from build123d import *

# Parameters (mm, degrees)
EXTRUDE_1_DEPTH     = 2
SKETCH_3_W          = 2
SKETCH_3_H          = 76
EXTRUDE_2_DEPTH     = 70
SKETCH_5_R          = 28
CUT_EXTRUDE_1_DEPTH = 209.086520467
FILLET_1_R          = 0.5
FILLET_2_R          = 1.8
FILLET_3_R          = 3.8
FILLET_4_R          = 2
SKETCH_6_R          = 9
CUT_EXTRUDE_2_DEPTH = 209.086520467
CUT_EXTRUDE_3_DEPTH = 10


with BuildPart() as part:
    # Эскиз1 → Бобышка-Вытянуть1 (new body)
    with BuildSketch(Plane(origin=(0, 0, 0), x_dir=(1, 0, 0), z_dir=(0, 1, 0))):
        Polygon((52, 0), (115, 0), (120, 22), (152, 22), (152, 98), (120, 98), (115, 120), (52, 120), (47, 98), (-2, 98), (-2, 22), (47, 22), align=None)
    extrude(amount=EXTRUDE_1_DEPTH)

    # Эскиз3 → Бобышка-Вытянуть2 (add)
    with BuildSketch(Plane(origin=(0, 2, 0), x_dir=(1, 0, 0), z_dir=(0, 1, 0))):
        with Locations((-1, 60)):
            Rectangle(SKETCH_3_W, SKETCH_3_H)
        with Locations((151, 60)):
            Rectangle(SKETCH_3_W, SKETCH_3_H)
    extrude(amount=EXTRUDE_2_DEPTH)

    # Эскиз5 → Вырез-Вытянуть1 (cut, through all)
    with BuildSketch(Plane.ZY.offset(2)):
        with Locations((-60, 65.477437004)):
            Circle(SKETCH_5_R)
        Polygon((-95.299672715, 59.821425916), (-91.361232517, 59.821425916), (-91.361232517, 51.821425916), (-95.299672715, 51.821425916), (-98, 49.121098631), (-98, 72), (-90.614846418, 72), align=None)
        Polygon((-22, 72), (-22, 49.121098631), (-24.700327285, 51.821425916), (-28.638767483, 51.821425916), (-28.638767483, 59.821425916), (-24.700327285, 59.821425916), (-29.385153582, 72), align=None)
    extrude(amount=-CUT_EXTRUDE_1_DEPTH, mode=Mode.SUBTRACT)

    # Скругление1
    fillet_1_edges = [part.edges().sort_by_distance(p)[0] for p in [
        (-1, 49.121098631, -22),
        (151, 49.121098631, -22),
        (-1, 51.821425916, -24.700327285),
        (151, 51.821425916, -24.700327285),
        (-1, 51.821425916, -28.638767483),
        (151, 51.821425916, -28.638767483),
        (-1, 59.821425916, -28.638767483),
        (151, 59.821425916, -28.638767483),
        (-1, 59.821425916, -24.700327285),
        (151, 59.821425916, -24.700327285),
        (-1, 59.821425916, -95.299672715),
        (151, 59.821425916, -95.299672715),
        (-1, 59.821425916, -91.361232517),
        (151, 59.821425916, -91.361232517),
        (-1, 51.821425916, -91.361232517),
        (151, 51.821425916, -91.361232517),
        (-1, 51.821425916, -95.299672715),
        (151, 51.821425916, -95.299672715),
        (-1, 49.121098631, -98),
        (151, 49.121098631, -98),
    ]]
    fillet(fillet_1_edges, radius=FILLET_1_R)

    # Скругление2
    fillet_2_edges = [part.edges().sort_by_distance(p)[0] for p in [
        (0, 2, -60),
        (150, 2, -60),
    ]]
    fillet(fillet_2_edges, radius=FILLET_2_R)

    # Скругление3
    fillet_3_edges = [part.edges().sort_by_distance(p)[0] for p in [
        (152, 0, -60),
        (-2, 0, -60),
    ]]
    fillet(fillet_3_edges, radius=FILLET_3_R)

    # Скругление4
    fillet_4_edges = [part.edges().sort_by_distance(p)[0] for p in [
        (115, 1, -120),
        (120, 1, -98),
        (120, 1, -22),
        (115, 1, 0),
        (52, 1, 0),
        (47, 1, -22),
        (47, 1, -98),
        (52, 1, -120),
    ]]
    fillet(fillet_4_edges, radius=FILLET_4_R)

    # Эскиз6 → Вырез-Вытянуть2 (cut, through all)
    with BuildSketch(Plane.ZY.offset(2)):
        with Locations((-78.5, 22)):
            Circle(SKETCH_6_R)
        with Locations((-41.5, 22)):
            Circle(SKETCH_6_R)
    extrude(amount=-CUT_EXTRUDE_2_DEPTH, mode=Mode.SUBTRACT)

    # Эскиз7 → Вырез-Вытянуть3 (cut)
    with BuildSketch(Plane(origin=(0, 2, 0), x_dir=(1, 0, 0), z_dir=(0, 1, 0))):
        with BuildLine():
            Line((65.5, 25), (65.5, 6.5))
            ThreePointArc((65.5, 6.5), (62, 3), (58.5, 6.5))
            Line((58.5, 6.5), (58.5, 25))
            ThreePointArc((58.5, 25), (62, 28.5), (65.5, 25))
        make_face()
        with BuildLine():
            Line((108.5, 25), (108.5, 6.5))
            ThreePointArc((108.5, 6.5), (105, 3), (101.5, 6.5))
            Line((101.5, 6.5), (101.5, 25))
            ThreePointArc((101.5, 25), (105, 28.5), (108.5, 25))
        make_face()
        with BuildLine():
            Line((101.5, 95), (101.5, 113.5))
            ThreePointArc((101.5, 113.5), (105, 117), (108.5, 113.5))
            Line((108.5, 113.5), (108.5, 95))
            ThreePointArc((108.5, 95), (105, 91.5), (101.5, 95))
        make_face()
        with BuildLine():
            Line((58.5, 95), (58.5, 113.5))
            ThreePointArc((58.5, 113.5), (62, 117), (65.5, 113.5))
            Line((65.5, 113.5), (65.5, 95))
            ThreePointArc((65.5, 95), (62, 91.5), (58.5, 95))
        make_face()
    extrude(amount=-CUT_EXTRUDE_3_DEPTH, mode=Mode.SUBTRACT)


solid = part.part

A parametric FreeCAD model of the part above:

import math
import FreeCAD as App
import Part
import Sketcher
from FreeCAD import Vector
Q = App.Units.Quantity


def edges_at(feature, points):
    """Names of the edges that pass closest to the given points."""
    edges = feature.Shape.Edges
    near = lambda p: min(range(len(edges)), key=lambda i: edges[i].distToShape(Part.Vertex(*p))[0])
    return sorted({f"Edge{near(p) + 1}" for p in points})

doc = App.newDocument("Part")
body = doc.addObject("PartDesign::Body", "Body")

# Sketch on XZ plane
sketch1 = body.newObject("Sketcher::SketchObject", "Sketch")
sketch1.AttachmentSupport = (doc.getObject("XZ_Plane"), [""])
sketch1.MapMode = "FlatFace"
sketch1.addGeometry([
    Part.LineSegment(Vector(52, 0, 0), Vector(115, 0, 0)),  # 0
    Part.LineSegment(Vector(115, 0, 0), Vector(120, -22, 0)),  # 1
    Part.LineSegment(Vector(120, -22, 0), Vector(152, -22, 0)),  # 2
    Part.LineSegment(Vector(152, -22, 0), Vector(152, -98, 0)),  # 3
    Part.LineSegment(Vector(152, -98, 0), Vector(120, -98, 0)),  # 4
    Part.LineSegment(Vector(120, -98, 0), Vector(115, -120, 0)),  # 5
    Part.LineSegment(Vector(115, -120, 0), Vector(52, -120, 0)),  # 6
    Part.LineSegment(Vector(52, -120, 0), Vector(47, -98, 0)),  # 7
    Part.LineSegment(Vector(47, -98, 0), Vector(-2, -98, 0)),  # 8
    Part.LineSegment(Vector(-2, -98, 0), Vector(-2, -22, 0)),  # 9
    Part.LineSegment(Vector(-2, -22, 0), Vector(47, -22, 0)),  # 10
    Part.LineSegment(Vector(47, -22, 0), Vector(52, 0, 0)),  # 11
], False)
sketch1.addConstraint([
    Sketcher.Constraint("Coincident", 0, 2, 1, 1),
    Sketcher.Constraint("Coincident", 1, 2, 2, 1),
    Sketcher.Constraint("Coincident", 2, 2, 3, 1),
    Sketcher.Constraint("Coincident", 3, 2, 4, 1),
    Sketcher.Constraint("Coincident", 4, 2, 5, 1),
    Sketcher.Constraint("Coincident", 5, 2, 6, 1),
    Sketcher.Constraint("Coincident", 6, 2, 7, 1),
    Sketcher.Constraint("Coincident", 7, 2, 8, 1),
    Sketcher.Constraint("Coincident", 8, 2, 9, 1),
    Sketcher.Constraint("Coincident", 9, 2, 10, 1),
    Sketcher.Constraint("Coincident", 10, 2, 11, 1),
    Sketcher.Constraint("Coincident", 11, 2, 0, 1),
    Sketcher.Constraint("Horizontal", 0),
    Sketcher.Constraint("Horizontal", 2),
    Sketcher.Constraint("Vertical", 3),
    Sketcher.Constraint("Horizontal", 4),
    Sketcher.Constraint("Horizontal", 6),
    Sketcher.Constraint("Horizontal", 8),
    Sketcher.Constraint("Vertical", 9),
    Sketcher.Constraint("Horizontal", 10),
    Sketcher.Constraint("PointOnObject", 0, 2, -1),
    Sketcher.Constraint("Parallel", 1, 7),
    Sketcher.Constraint("Parallel", 5, 11),
    Sketcher.Constraint("Horizontal", 4, 2, 7, 2),
    Sketcher.Constraint("Horizontal", 2, 2, 9, 2),
    Sketcher.Constraint("Vertical", 1, 2, 4, 2),
    Sketcher.Constraint("Vertical", 0, 2, 5, 2),
    Sketcher.Constraint("Vertical", 7, 2, 10, 2),
    Sketcher.Constraint("Vertical", 6, 2, 11, 2),
    Sketcher.Constraint("DistanceX", 0, 1, 0, 2, Q("63 mm")),
    Sketcher.Constraint("DistanceX", 2, 1, 2, 2, Q("32 mm")),
    Sketcher.Constraint("DistanceX", 8, 2, 8, 1, Q("49 mm")),
    Sketcher.Constraint("DistanceY", 3, 2, 3, 1, Q("76 mm")),
    Sketcher.Constraint("DistanceX", -1, 1, 0, 2, Q("115 mm")),
    Sketcher.Constraint("DistanceX", -1, 1, 1, 2, Q("120 mm")),
    Sketcher.Constraint("DistanceY", 1, 2, -1, 1, Q("22 mm")),
])
pad1 = body.newObject("PartDesign::Pad", "Pad")
pad1.Profile = sketch1
pad1.Length = 2
pad1.Reversed = True

# Sketch on XZ plane
sketch2 = body.newObject("Sketcher::SketchObject", "Sketch001")
sketch2.AttachmentSupport = (doc.getObject("XZ_Plane"), [""])
sketch2.MapMode = "FlatFace"
sketch2.AttachmentOffset = App.Placement(Vector(0, 0, -2), App.Rotation())
sketch2.addGeometry([
    Part.LineSegment(Vector(-2, -98, 0), Vector(-2, -22, 0)),  # 0
    Part.LineSegment(Vector(-2, -22, 0), Vector(0, -22, 0)),  # 1
    Part.LineSegment(Vector(0, -22, 0), Vector(0, -98, 0)),  # 2
    Part.LineSegment(Vector(0, -98, 0), Vector(-2, -98, 0)),  # 3
    Part.LineSegment(Vector(150, -98, 0), Vector(150, -22, 0)),  # 4
    Part.LineSegment(Vector(150, -22, 0), Vector(152, -22, 0)),  # 5
    Part.LineSegment(Vector(152, -22, 0), Vector(152, -98, 0)),  # 6
    Part.LineSegment(Vector(152, -98, 0), Vector(150, -98, 0)),  # 7
], False)
sketch2.addConstraint([
    Sketcher.Constraint("Coincident", 0, 2, 1, 1),
    Sketcher.Constraint("Coincident", 1, 2, 2, 1),
    Sketcher.Constraint("Coincident", 2, 2, 3, 1),
    Sketcher.Constraint("Coincident", 3, 2, 0, 1),
    Sketcher.Constraint("Coincident", 4, 2, 5, 1),
    Sketcher.Constraint("Coincident", 5, 2, 6, 1),
    Sketcher.Constraint("Coincident", 6, 2, 7, 1),
    Sketcher.Constraint("Coincident", 7, 2, 4, 1),
    Sketcher.Constraint("Vertical", 0),
    Sketcher.Constraint("Horizontal", 1),
    Sketcher.Constraint("Vertical", 2),
    Sketcher.Constraint("Horizontal", 3),
    Sketcher.Constraint("Vertical", 4),
    Sketcher.Constraint("Horizontal", 5),
    Sketcher.Constraint("Vertical", 6),
    Sketcher.Constraint("Horizontal", 7),
    Sketcher.Constraint("PointOnObject", 1, 2, -2),
    Sketcher.Constraint("Horizontal", 1, 2, 4, 2),
    Sketcher.Constraint("Horizontal", 3, 2, 6, 2),
    Sketcher.Constraint("Equal", 3, 5),
    Sketcher.Constraint("DistanceX", 1, 1, 1, 2, Q("2 mm")),
    Sketcher.Constraint("DistanceY", 0, 1, 0, 2, Q("76 mm")),
    Sketcher.Constraint("DistanceY", 0, 2, -1, 1, Q("22 mm")),
    Sketcher.Constraint("DistanceX", -1, 1, 4, 2, Q("150 mm")),
])
pad2 = body.newObject("PartDesign::Pad", "Pad001")
pad2.Profile = sketch2
pad2.Length = 70
pad2.Reversed = True

# Sketch on YZ plane
sketch3 = body.newObject("Sketcher::SketchObject", "Sketch002")
sketch3.AttachmentSupport = (doc.getObject("YZ_Plane"), [""])
sketch3.MapMode = "FlatFace"
sketch3.AttachmentOffset = App.Placement(Vector(0, 0, -2), App.Rotation())
sketch3.addGeometry([
    Part.Circle(Vector(65.477437, -60, 0), Vector(0, 0, 1), 28),  # 0
    Part.LineSegment(Vector(59.821426, -91.361233, 0), Vector(59.821426, -95.299673, 0)),  # 1
    Part.LineSegment(Vector(59.821426, -95.299673, 0), Vector(72, -90.614846, 0)),  # 2
    Part.LineSegment(Vector(72, -90.614846, 0), Vector(72, -98, 0)),  # 3
    Part.LineSegment(Vector(72, -98, 0), Vector(49.121099, -98, 0)),  # 4
    Part.LineSegment(Vector(49.121099, -98, 0), Vector(51.821426, -95.299673, 0)),  # 5
    Part.LineSegment(Vector(51.821426, -95.299673, 0), Vector(51.821426, -91.361233, 0)),  # 6
    Part.LineSegment(Vector(51.821426, -91.361233, 0), Vector(59.821426, -91.361233, 0)),  # 7
    Part.LineSegment(Vector(49.121099, -22, 0), Vector(72, -22, 0)),  # 8
    Part.LineSegment(Vector(72, -22, 0), Vector(72, -29.385154, 0)),  # 9
    Part.LineSegment(Vector(72, -29.385154, 0), Vector(59.821426, -24.700327, 0)),  # 10
    Part.LineSegment(Vector(59.821426, -24.700327, 0), Vector(59.821426, -28.638767, 0)),  # 11
    Part.LineSegment(Vector(59.821426, -28.638767, 0), Vector(51.821426, -28.638767, 0)),  # 12
    Part.LineSegment(Vector(51.821426, -28.638767, 0), Vector(51.821426, -24.700327, 0)),  # 13
    Part.LineSegment(Vector(51.821426, -24.700327, 0), Vector(49.121099, -22, 0)),  # 14
], False)
sketch3.addConstraint([
    Sketcher.Constraint("Coincident", 1, 2, 2, 1),
    Sketcher.Constraint("Coincident", 2, 2, 3, 1),
    Sketcher.Constraint("Coincident", 3, 2, 4, 1),
    Sketcher.Constraint("Coincident", 4, 2, 5, 1),
    Sketcher.Constraint("Coincident", 5, 2, 6, 1),
    Sketcher.Constraint("Coincident", 6, 2, 7, 1),
    Sketcher.Constraint("Coincident", 7, 2, 1, 1),
    Sketcher.Constraint("Coincident", 8, 2, 9, 1),
    Sketcher.Constraint("Coincident", 9, 2, 10, 1),
    Sketcher.Constraint("Coincident", 10, 2, 11, 1),
    Sketcher.Constraint("Coincident", 11, 2, 12, 1),
    Sketcher.Constraint("Coincident", 12, 2, 13, 1),
    Sketcher.Constraint("Coincident", 13, 2, 14, 1),
    Sketcher.Constraint("Coincident", 14, 2, 8, 1),
    Sketcher.Constraint("Vertical", 1),
    Sketcher.Constraint("Vertical", 3),
    Sketcher.Constraint("Horizontal", 4),
    Sketcher.Constraint("Vertical", 6),
    Sketcher.Constraint("Horizontal", 7),
    Sketcher.Constraint("Horizontal", 8),
    Sketcher.Constraint("Vertical", 9),
    Sketcher.Constraint("Vertical", 11),
    Sketcher.Constraint("Horizontal", 12),
    Sketcher.Constraint("Vertical", 13),
    Sketcher.Constraint("Perpendicular", 5, 14),
    Sketcher.Constraint("Horizontal", 1, 2, 5, 2),
    Sketcher.Constraint("Horizontal", 10, 2, 13, 2),
    Sketcher.Constraint("Vertical", 3, 2, 8, 2),
    Sketcher.Constraint("Vertical", 7, 2, 10, 2),
    Sketcher.Constraint("Vertical", 6, 2, 12, 2),
    Sketcher.Constraint("Vertical", 4, 2, 14, 2),
    Sketcher.Constraint("Equal", 3, 9),
    Sketcher.Constraint("Equal", 6, 11),
    Sketcher.Constraint("Equal", 2, 10),
    Sketcher.Constraint("Diameter", 0, Q("56 mm")),
    Sketcher.Constraint("DistanceX", 7, 1, 7, 2, Q("8 mm")),
    Sketcher.Constraint("DistanceY", 0, 3, -1, 1, Q("60 mm")),
    Sketcher.Constraint("DistanceX", -1, 1, 2, 2, Q("72 mm")),
    Sketcher.Constraint("DistanceY", 3, 2, -1, 1, Q("98 mm")),
    Sketcher.Constraint("DistanceY", 8, 2, -1, 1, Q("22 mm")),
    Sketcher.Constraint("DistanceX", 4, 2, 4, 1, Q("22.878901 mm")),
    Sketcher.Constraint("DistanceY", 1, 2, 1, 1, Q("3.93844 mm")),
    Sketcher.Constraint("Distance", 5, Q("3.818839 mm")),
    Sketcher.Constraint("DistanceY", 3, 2, 3, 1, Q("7.385154 mm")),
    Sketcher.Constraint("DistanceX", 1, 2, 0, 3, Q("5.656011 mm")),
])
pocket1 = body.newObject("PartDesign::Pocket", "Pocket")
pocket1.Profile = sketch3
pocket1.Type = "ThroughAll"
pocket1.Reversed = True
doc.recompute()

fillet = body.newObject("PartDesign::Fillet", "Fillet")
fillet.Base = (pocket1, edges_at(pocket1, [
    (-1, 49.121, -22),
    (151, 49.121, -22),
    (-1, 51.821, -24.7),
    (151, 51.821, -24.7),
    (-1, 51.821, -28.639),
    (151, 51.821, -28.639),
    (-1, 59.821, -28.639),
    (151, 59.821, -28.639),
    (-1, 59.821, -24.7),
    (151, 59.821, -24.7),
    (-1, 59.821, -95.3),
    (151, 59.821, -95.3),
    (-1, 59.821, -91.361),
    (151, 59.821, -91.361),
    (-1, 51.821, -91.361),
    (151, 51.821, -91.361),
    (-1, 51.821, -95.3),
    (151, 51.821, -95.3),
    (-1, 49.121, -98),
    (151, 49.121, -98),
]))
fillet.Radius = 0.5
doc.recompute()

fillet2 = body.newObject("PartDesign::Fillet", "Fillet001")
fillet2.Base = (fillet, edges_at(fillet, [(0, 2, -60), (150, 2, -60)]))
fillet2.Radius = 1.8
doc.recompute()

fillet3 = body.newObject("PartDesign::Fillet", "Fillet002")
fillet3.Base = (fillet2, edges_at(fillet2, [(152, 0, -60), (-2, 0, -60)]))
fillet3.Radius = 3.8
doc.recompute()

fillet4 = body.newObject("PartDesign::Fillet", "Fillet003")
fillet4.Base = (fillet3, edges_at(fillet3, [
    (115, 1, -120),
    (120, 1, -98),
    (120, 1, -22),
    (115, 1, 0),
    (52, 1, 0),
    (47, 1, -22),
    (47, 1, -98),
    (52, 1, -120),
]))
fillet4.Radius = 2

# Sketch on YZ plane
sketch4 = body.newObject("Sketcher::SketchObject", "Sketch003")
sketch4.AttachmentSupport = (doc.getObject("YZ_Plane"), [""])
sketch4.MapMode = "FlatFace"
sketch4.AttachmentOffset = App.Placement(Vector(0, 0, -2), App.Rotation())
sketch4.addGeometry([
    Part.Circle(Vector(22, -78.5, 0), Vector(0, 0, 1), 9),
    Part.Circle(Vector(22, -41.5, 0), Vector(0, 0, 1), 9),
], False)
sketch4.addConstraint([
    Sketcher.Constraint("Equal", 0, 1),
    Sketcher.Constraint("Vertical", 0, 3, 1, 3),
    Sketcher.Constraint("Diameter", 0, Q("18 mm")),
    Sketcher.Constraint("DistanceX", -1, 1, 0, 3, Q("22 mm")),
    Sketcher.Constraint("DistanceY", 0, 3, 1, 3, Q("37 mm")),
    Sketcher.Constraint("DistanceY", 0, 3, -1, 1, Q("78.5 mm")),
])
pocket2 = body.newObject("PartDesign::Pocket", "Pocket001")
pocket2.Profile = sketch4
pocket2.Type = "ThroughAll"
pocket2.Reversed = True

# Sketch on XZ plane
sketch5 = body.newObject("Sketcher::SketchObject", "Sketch004")
sketch5.AttachmentSupport = (doc.getObject("XZ_Plane"), [""])
sketch5.MapMode = "FlatFace"
sketch5.AttachmentOffset = App.Placement(Vector(0, 0, -2), App.Rotation())
sketch5.addGeometry([
    Part.LineSegment(Vector(65.5, -6.5, 0), Vector(65.5, -25, 0)),  # 0
    Part.ArcOfCircle(Part.Circle(Vector(62, -25, 0), Vector(0, 0, 1), 3.5), math.radians(180), math.radians(360)),  # 1
    Part.LineSegment(Vector(58.5, -25, 0), Vector(58.5, -6.5, 0)),  # 2
    Part.ArcOfCircle(Part.Circle(Vector(62, -6.5, 0), Vector(0, 0, 1), 3.5), math.radians(0), math.radians(180)),  # 3
    Part.LineSegment(Vector(108.5, -6.5, 0), Vector(108.5, -25, 0)),  # 4
    Part.ArcOfCircle(Part.Circle(Vector(105, -25, 0), Vector(0, 0, 1), 3.5), math.radians(180), math.radians(360)),  # 5
    Part.LineSegment(Vector(101.5, -25, 0), Vector(101.5, -6.5, 0)),  # 6
    Part.ArcOfCircle(Part.Circle(Vector(105, -6.5, 0), Vector(0, 0, 1), 3.5), math.radians(0), math.radians(180)),  # 7
    Part.LineSegment(Vector(101.5, -113.5, 0), Vector(101.5, -95, 0)),  # 8
    Part.ArcOfCircle(Part.Circle(Vector(105, -95, 0), Vector(0, 0, 1), 3.5), math.radians(0), math.radians(180)),  # 9
    Part.LineSegment(Vector(108.5, -95, 0), Vector(108.5, -113.5, 0)),  # 10
    Part.ArcOfCircle(Part.Circle(Vector(105, -113.5, 0), Vector(0, 0, 1), 3.5), math.radians(180), math.radians(360)),  # 11
    Part.LineSegment(Vector(58.5, -113.5, 0), Vector(58.5, -95, 0)),  # 12
    Part.ArcOfCircle(Part.Circle(Vector(62, -95, 0), Vector(0, 0, 1), 3.5), math.radians(0), math.radians(180)),  # 13
    Part.LineSegment(Vector(65.5, -95, 0), Vector(65.5, -113.5, 0)),  # 14
    Part.ArcOfCircle(Part.Circle(Vector(62, -113.5, 0), Vector(0, 0, 1), 3.5), math.radians(180), math.radians(360)),  # 15
], False)
sketch5.addConstraint([
    Sketcher.Constraint("Tangent", 0, 2, 1, 2),
    Sketcher.Constraint("Tangent", 1, 1, 2, 1),
    Sketcher.Constraint("Tangent", 2, 2, 3, 2),
    Sketcher.Constraint("Tangent", 3, 1, 0, 1),
    Sketcher.Constraint("Tangent", 4, 2, 5, 2),
    Sketcher.Constraint("Tangent", 5, 1, 6, 1),
    Sketcher.Constraint("Tangent", 6, 2, 7, 2),
    Sketcher.Constraint("Tangent", 7, 1, 4, 1),
    Sketcher.Constraint("Tangent", 8, 2, 9, 2),
    Sketcher.Constraint("Tangent", 9, 1, 10, 1),
    Sketcher.Constraint("Tangent", 10, 2, 11, 2),
    Sketcher.Constraint("Tangent", 11, 1, 8, 1),
    Sketcher.Constraint("Tangent", 12, 2, 13, 2),
    Sketcher.Constraint("Tangent", 13, 1, 14, 1),
    Sketcher.Constraint("Tangent", 14, 2, 15, 2),
    Sketcher.Constraint("Tangent", 15, 1, 12, 1),
    Sketcher.Constraint("Vertical", 0),
    Sketcher.Constraint("Vertical", 2),
    Sketcher.Constraint("Vertical", 4),
    Sketcher.Constraint("Vertical", 6),
    Sketcher.Constraint("Vertical", 8),
    Sketcher.Constraint("Vertical", 10),
    Sketcher.Constraint("Vertical", 12),
    Sketcher.Constraint("Vertical", 14),
    Sketcher.Constraint("Equal", 3, 5),
    Sketcher.Constraint("Equal", 7, 9),
    Sketcher.Constraint("Equal", 11, 13),
    Sketcher.Constraint("Horizontal", 1, 3, 5, 3),
    Sketcher.Constraint("Horizontal", 3, 3, 7, 3),
    Sketcher.Constraint("Horizontal", 9, 3, 13, 3),
    Sketcher.Constraint("Horizontal", 11, 3, 15, 3),
    Sketcher.Constraint("Vertical", 7, 3, 9, 3),
    Sketcher.Constraint("Vertical", 3, 3, 13, 3),
    Sketcher.Constraint("Equal", 6, 8),
    Sketcher.Constraint("Radius", 1, Q("3.5 mm")),
    Sketcher.Constraint("DistanceY", 0, 2, 0, 1, Q("18.5 mm")),
    Sketcher.Constraint("DistanceX", -1, 1, 1, 3, Q("62 mm")),
    Sketcher.Constraint("DistanceY", 1, 3, -1, 1, Q("25 mm")),
    Sketcher.Constraint("DistanceX", -1, 1, 5, 3, Q("105 mm")),
    Sketcher.Constraint("DistanceY", 9, 3, -1, 1, Q("95 mm")),
])
pocket3 = body.newObject("PartDesign::Pocket", "Pocket002")
pocket3.Profile = sketch5
pocket3.Length = 10
pocket3.Reversed = True

doc.recompute()
